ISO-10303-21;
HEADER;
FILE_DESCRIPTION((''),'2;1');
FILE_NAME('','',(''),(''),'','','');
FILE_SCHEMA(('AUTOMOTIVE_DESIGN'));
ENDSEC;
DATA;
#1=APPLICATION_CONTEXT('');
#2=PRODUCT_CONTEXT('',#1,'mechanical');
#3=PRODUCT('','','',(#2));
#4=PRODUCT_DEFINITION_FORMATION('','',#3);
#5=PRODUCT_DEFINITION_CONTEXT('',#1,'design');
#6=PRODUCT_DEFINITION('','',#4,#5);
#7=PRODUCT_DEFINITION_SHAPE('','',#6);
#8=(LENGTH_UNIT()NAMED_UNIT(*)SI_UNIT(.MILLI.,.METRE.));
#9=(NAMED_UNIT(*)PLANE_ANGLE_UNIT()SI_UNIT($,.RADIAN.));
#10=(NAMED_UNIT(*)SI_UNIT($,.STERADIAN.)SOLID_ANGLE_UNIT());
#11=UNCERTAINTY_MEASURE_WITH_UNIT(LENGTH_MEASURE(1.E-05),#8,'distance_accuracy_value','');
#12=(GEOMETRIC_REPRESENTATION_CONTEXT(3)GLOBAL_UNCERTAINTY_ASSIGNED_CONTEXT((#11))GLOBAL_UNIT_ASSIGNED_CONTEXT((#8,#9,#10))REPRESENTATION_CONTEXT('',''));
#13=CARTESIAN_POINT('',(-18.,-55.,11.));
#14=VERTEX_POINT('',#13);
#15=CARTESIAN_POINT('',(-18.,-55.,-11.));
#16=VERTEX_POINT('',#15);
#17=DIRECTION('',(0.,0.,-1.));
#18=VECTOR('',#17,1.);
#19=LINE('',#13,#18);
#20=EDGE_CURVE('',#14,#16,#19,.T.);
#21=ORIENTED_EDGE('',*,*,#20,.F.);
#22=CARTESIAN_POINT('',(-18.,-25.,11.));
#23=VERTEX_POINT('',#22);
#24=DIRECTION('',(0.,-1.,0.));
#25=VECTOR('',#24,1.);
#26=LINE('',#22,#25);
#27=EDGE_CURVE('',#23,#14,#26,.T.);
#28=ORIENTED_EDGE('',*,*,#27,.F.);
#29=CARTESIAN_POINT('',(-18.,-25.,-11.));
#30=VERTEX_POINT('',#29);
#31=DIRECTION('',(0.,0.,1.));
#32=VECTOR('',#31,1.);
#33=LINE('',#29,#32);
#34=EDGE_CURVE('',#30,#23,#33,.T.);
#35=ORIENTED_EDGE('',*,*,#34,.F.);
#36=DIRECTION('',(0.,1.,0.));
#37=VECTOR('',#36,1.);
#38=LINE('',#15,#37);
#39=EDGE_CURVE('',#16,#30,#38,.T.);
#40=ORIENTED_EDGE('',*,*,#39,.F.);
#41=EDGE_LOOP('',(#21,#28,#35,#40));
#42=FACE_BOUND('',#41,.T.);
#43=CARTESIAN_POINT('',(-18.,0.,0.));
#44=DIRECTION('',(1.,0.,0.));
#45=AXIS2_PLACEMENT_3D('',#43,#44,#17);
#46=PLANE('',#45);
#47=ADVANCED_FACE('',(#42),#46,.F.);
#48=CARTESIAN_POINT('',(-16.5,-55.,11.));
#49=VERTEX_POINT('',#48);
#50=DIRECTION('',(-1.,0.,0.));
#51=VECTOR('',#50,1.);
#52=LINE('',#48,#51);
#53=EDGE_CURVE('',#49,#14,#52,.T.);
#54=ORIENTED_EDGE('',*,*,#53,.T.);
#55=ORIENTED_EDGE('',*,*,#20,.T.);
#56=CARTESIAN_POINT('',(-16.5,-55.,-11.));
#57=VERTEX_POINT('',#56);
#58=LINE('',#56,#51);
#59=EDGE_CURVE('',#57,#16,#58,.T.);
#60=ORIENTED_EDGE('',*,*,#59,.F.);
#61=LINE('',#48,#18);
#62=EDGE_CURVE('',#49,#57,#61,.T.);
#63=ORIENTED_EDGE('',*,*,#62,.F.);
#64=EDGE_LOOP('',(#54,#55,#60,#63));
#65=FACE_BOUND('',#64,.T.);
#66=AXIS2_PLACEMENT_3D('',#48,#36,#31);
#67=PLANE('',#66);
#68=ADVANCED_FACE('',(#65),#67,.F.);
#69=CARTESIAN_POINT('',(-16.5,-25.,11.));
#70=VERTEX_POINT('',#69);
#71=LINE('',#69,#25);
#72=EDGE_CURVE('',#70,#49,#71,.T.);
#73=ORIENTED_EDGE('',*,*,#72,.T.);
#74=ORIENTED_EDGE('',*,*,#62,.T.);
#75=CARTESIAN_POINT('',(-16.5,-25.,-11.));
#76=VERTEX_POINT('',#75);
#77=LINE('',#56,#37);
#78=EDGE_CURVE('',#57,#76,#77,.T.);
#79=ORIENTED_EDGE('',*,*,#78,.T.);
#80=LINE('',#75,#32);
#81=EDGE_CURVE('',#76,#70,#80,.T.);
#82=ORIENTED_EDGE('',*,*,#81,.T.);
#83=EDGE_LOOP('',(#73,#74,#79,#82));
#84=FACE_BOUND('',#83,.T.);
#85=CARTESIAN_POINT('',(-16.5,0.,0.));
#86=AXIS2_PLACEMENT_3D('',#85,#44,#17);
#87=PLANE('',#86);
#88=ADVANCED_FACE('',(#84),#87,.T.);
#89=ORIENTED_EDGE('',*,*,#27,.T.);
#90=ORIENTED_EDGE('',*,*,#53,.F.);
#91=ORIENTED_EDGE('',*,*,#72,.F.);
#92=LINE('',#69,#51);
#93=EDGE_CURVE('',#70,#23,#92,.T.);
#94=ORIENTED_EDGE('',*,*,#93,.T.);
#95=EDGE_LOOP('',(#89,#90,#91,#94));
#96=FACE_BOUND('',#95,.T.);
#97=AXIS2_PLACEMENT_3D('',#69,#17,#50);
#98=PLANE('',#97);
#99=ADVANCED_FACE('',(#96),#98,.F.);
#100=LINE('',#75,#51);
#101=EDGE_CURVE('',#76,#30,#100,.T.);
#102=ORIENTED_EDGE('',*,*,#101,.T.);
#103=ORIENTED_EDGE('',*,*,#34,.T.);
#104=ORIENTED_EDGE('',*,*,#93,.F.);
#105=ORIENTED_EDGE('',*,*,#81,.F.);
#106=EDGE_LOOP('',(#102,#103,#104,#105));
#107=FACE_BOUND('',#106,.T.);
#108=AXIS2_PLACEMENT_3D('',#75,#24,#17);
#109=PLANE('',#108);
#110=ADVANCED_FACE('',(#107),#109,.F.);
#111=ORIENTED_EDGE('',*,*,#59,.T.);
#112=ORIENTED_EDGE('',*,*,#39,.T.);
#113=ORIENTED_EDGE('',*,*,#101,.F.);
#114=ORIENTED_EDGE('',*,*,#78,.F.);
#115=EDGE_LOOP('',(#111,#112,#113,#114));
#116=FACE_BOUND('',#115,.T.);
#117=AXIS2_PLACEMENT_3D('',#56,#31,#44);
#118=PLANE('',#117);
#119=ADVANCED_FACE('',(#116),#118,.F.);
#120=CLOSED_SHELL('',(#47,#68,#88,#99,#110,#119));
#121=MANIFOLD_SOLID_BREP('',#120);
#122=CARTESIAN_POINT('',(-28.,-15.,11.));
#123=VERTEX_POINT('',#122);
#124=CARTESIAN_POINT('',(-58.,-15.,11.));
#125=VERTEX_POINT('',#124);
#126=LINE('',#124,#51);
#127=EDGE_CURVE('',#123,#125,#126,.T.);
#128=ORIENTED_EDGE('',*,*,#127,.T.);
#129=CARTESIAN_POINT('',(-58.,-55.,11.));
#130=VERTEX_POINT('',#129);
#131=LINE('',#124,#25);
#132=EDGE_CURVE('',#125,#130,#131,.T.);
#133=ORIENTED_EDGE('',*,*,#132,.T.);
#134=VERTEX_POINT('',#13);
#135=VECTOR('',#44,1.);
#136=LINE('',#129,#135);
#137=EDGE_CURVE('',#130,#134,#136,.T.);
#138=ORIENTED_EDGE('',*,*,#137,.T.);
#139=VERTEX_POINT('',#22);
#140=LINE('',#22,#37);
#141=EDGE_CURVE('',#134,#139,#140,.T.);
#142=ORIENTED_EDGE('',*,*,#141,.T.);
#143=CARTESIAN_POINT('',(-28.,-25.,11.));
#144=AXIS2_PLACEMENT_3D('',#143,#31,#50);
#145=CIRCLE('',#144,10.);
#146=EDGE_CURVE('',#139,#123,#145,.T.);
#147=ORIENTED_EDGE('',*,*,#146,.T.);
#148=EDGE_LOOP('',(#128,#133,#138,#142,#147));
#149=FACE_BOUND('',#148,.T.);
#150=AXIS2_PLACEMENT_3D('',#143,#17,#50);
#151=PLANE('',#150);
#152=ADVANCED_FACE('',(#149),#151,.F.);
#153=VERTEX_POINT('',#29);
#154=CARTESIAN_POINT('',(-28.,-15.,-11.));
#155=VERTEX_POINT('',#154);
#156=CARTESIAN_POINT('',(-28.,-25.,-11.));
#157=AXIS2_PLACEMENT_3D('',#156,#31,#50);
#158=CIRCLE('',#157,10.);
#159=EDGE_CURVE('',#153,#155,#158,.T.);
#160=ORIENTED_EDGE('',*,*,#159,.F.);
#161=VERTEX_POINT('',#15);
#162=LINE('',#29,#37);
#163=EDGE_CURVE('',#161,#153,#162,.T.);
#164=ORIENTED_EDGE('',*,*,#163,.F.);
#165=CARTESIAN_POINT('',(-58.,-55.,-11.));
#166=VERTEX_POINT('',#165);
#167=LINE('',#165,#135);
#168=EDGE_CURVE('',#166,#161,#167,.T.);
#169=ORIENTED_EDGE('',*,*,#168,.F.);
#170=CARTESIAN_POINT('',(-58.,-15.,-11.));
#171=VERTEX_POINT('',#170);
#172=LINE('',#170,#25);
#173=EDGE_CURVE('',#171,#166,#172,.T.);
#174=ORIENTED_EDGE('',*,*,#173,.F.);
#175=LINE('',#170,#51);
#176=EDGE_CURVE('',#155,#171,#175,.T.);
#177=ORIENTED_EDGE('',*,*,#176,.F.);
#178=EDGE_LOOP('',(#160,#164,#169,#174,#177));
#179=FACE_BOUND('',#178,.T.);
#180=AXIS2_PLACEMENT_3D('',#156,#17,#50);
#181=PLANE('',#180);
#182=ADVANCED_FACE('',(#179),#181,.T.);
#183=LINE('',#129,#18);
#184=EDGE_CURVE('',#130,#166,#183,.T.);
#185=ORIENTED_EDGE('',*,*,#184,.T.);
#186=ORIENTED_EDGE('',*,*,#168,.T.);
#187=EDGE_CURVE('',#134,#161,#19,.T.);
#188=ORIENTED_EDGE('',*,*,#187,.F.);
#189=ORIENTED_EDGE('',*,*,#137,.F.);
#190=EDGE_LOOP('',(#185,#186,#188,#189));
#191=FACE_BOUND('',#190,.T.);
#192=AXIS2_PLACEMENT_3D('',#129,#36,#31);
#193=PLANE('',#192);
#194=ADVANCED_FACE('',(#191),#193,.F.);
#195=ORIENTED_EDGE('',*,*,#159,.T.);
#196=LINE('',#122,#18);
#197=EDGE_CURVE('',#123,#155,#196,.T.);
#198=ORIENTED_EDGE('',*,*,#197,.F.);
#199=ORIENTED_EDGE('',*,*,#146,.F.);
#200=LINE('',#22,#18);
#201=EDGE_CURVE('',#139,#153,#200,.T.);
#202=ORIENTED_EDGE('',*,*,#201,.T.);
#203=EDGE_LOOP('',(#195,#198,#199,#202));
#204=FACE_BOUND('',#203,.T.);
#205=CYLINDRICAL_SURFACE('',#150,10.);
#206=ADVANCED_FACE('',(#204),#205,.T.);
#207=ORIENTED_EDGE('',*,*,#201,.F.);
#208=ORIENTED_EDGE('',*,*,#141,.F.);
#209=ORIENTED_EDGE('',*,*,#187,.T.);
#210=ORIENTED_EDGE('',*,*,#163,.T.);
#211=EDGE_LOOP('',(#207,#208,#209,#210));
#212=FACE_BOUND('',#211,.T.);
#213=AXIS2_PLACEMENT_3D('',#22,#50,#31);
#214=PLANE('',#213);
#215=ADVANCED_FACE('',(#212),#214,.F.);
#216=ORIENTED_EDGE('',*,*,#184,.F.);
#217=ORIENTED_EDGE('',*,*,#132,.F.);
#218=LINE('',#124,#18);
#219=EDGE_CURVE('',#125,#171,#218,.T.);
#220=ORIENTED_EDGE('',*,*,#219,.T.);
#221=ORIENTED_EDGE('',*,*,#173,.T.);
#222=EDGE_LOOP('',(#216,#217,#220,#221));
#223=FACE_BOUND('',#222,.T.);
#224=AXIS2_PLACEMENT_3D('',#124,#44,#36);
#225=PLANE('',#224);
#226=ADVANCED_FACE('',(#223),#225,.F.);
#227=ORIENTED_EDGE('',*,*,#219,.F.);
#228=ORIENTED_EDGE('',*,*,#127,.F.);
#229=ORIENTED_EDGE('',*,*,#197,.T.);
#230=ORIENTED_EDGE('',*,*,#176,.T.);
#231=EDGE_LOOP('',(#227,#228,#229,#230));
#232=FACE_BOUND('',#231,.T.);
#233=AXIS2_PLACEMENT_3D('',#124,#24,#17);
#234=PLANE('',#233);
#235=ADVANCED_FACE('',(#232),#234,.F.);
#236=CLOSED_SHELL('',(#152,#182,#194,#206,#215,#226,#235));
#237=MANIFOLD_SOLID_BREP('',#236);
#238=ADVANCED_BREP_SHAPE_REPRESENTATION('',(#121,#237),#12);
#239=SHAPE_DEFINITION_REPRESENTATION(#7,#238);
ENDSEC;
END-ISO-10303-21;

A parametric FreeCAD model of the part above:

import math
import FreeCAD as App
import Part
import Sketcher


def add_polygon(sketch, points):
    """Adds a closed chain of lines whose ends are joined by coincident constraints."""
    first, n = sketch.GeometryCount, len(points)
    for a, b in zip(points, points[1:] + points[:1]):
        sketch.addGeometry(Part.LineSegment(App.Vector(*a, 0), App.Vector(*b, 0)), False)
    for i in range(n):
        sketch.addConstraint(Sketcher.Constraint("Coincident", first + i, 2, first + (i + 1) % n, 1))

doc = App.newDocument("Part")
params = doc.addObject("Spreadsheet::Sheet", "Params")
for row, (alias, value) in enumerate([
    ("sketch1_radius", "10 mm"),
    ("sketch1_width", "30 mm"),
    ("pad1_length", "22 mm"),
    ("sketch2_width", "30 mm"),
    ("sketch2_height", "22 mm"),
    ("pad2_length", "1.5 mm"),
], start=1):
    params.set(f"A{row}", alias)
    params.set(f"B{row}", "=" + value)
    params.setAlias(f"B{row}", alias)

body = doc.addObject("PartDesign::Body", "Body")

# Sketch on XY plane
sketch1 = doc.addObject("Sketcher::SketchObject", "Sketch")
body.addObject(sketch1)
sketch1.AttachmentSupport = (doc.XY_Plane, [""])
sketch1.MapMode = "FlatFace"
sketch1.addGeometry([
    Part.LineSegment(App.Vector(-28, -15, 0), App.Vector(-58, -15, 0)),  # 0
    Part.LineSegment(App.Vector(-58, -15, 0), App.Vector(-58, -55, 0)),  # 1
    Part.LineSegment(App.Vector(-58, -55, 0), App.Vector(-18, -55, 0)),  # 2
    Part.LineSegment(App.Vector(-18, -55, 0), App.Vector(-18, -25, 0)),  # 3
    Part.ArcOfCircle(Part.Circle(App.Vector(-28, -25, 0), App.Vector(0, 0, 1), 10), math.radians(0), math.radians(90)),  # 4
], False)
sketch1.addConstraint([
    Sketcher.Constraint("Coincident", 0, 2, 1, 1),
    Sketcher.Constraint("Coincident", 1, 2, 2, 1),
    Sketcher.Constraint("Coincident", 2, 2, 3, 1),
    Sketcher.Constraint("Tangent", 3, 2, 4, 1),
    Sketcher.Constraint("Tangent", 4, 2, 0, 1),
    Sketcher.Constraint("Horizontal", 0),
    Sketcher.Constraint("Vertical", 1),
    Sketcher.Constraint("Horizontal", 2),
    Sketcher.Constraint("Vertical", 3),
    Sketcher.Constraint("Equal", 2, 1),
    Sketcher.Constraint("Radius", 4, 10.0),
    Sketcher.Constraint("DistanceX", 0, 2, 0, 1, 30.0),
    Sketcher.Constraint("DistanceX", 4, 3, -1, 1, 28.0),
    Sketcher.Constraint("DistanceY", 4, 3, -1, 1, 25.0),
])
sketch1.setExpression("Constraints[10]", "Params.sketch1_radius")
sketch1.setExpression("Constraints[11]", "Params.sketch1_width")
pad1 = doc.addObject("PartDesign::Pad", "Pad")
body.addObject(pad1)
pad1.Profile = sketch1
pad1.setExpression("Length", "Params.pad1_length")
pad1.Midplane = True
body2 = doc.addObject("PartDesign::Body", "Body001")

# Sketch on YZ plane
sketch2 = doc.addObject("Sketcher::SketchObject", "Sketch001")
body2.addObject(sketch2)
sketch2.AttachmentSupport = (doc.getObject("YZ_Plane001"), [""])
sketch2.MapMode = "FlatFace"
sketch2.AttachmentOffset = App.Placement(App.Vector(0, 0, -18), App.Rotation())
add_polygon(sketch2, [(-25, 11), (-55, 11), (-55, -11), (-25, -11)])  # lines 0-3
sketch2.addConstraint([
    Sketcher.Constraint("Horizontal", 0),
    Sketcher.Constraint("Vertical", 1),
    Sketcher.Constraint("Horizontal", 2),
    Sketcher.Constraint("Vertical", 3),
    Sketcher.Constraint("DistanceX", 0, 2, 0, 1, 30.0),
    Sketcher.Constraint("DistanceY", 1, 2, 1, 1, 22.0),
    Sketcher.Constraint("DistanceX", 0, 2, -1, 1, 55.0),
    Sketcher.Constraint("DistanceY", -1, 1, 0, 2, 11.0),
])
sketch2.setExpression("Constraints[8]", "Params.sketch2_width")
sketch2.setExpression("Constraints[9]", "Params.sketch2_height")
pad2 = doc.addObject("PartDesign::Pad", "Pad001")
body2.addObject(pad2)
pad2.Profile = sketch2
pad2.setExpression("Length", "Params.pad2_length")

doc.recompute()
